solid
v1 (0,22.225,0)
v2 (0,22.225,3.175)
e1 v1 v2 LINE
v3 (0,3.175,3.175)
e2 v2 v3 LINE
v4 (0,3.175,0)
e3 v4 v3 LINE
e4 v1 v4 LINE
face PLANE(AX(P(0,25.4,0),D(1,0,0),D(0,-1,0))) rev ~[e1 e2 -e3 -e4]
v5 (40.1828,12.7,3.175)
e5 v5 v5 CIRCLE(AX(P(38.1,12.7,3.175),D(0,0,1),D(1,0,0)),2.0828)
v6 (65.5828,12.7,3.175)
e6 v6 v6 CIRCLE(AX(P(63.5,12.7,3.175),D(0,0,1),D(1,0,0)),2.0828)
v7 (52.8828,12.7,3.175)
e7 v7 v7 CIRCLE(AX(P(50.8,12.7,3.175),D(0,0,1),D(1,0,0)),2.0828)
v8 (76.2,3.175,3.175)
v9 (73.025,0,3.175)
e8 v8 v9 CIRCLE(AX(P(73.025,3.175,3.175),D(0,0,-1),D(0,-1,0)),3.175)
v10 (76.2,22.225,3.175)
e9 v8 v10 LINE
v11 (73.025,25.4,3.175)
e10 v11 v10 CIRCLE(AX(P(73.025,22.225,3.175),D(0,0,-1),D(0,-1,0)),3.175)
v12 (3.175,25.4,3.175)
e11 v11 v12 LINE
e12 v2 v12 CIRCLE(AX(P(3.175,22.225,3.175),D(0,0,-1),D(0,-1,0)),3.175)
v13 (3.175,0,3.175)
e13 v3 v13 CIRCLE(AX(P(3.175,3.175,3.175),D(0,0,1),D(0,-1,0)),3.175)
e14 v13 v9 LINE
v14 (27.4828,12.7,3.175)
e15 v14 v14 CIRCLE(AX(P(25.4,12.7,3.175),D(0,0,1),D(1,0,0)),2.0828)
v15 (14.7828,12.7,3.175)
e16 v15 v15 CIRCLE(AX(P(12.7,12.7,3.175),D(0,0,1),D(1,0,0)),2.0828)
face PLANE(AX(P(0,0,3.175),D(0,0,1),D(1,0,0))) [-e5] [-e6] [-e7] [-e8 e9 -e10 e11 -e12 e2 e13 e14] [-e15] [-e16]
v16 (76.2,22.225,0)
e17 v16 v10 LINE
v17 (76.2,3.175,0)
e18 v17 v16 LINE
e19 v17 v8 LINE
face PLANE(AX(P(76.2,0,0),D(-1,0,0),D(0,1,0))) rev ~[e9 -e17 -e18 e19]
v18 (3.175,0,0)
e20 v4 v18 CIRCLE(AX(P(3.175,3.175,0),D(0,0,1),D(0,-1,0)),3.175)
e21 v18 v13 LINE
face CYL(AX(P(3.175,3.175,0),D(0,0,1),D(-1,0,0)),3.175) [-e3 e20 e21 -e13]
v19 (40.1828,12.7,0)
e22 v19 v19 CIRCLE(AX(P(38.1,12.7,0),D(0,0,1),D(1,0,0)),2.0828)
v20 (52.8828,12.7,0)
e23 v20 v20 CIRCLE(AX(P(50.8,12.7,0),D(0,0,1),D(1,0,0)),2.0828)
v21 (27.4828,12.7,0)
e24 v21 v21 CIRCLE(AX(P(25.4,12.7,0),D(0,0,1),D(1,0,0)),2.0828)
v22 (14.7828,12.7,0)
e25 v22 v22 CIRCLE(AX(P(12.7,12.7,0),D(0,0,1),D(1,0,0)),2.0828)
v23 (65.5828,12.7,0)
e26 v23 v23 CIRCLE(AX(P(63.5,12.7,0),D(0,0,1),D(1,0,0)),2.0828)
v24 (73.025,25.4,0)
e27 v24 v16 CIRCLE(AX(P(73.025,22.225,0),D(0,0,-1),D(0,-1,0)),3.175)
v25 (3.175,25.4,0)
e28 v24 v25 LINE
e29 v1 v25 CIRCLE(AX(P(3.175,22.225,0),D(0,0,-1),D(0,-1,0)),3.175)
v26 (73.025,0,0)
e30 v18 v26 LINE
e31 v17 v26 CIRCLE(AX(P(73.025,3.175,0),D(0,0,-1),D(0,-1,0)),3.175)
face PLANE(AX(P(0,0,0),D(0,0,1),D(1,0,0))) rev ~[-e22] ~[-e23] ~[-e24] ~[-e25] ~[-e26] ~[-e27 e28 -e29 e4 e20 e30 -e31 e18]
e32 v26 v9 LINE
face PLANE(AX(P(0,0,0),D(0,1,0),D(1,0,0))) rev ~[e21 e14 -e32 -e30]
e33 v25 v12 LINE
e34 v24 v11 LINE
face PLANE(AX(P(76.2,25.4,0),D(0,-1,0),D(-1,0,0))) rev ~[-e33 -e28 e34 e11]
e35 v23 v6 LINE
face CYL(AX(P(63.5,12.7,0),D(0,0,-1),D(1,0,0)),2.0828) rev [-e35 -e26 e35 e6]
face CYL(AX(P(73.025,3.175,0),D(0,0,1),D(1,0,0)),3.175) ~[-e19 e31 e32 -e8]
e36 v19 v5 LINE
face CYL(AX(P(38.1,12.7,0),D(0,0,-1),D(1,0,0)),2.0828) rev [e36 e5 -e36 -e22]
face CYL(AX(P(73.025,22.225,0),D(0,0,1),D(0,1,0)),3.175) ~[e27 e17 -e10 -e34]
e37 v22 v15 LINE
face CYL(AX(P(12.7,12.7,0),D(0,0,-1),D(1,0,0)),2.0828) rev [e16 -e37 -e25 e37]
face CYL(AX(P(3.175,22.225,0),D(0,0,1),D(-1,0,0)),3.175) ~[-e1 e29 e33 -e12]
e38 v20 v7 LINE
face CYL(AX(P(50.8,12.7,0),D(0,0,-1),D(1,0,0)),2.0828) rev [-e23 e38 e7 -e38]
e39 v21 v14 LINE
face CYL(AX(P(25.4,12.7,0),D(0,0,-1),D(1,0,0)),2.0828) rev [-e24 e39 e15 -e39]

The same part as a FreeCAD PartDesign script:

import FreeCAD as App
import Part
import Sketcher
Q = App.Units.Quantity


def edges_at(feature, points):
    """Names of the edges that pass closest to the given points."""
    edges = feature.Shape.Edges
    near = lambda p: min(range(len(edges)), key=lambda i: edges[i].distToShape(Part.Vertex(*p))[0])
    return sorted({f"Edge{near(p) + 1}" for p in points})

doc = App.newDocument("Part")
body = doc.addObject("PartDesign::Body", "Body")

sketch1 = doc.addObject("Sketcher::SketchObject", "Sketch")
body.addObject(sketch1)
sketch1.AttachmentSupport = (doc.XY_Plane, [""])
sketch1.MapMode = "FlatFace"
sketch1.addGeometry([
    Part.LineSegment(App.Vector(0, 25.4, 0), App.Vector(0, 0, 0)),
    Part.LineSegment(App.Vector(0, 0, 0), App.Vector(76.2, 0, 0)),
    Part.LineSegment(App.Vector(76.2, 0, 0), App.Vector(76.2, 25.4, 0)),
    Part.LineSegment(App.Vector(76.2, 25.4, 0), App.Vector(0, 25.4, 0)),
    Part.Circle(App.Vector(12.7, 12.7, 0), App.Vector(0, 0, 1), 2.1),
    Part.Circle(App.Vector(25.4, 12.7, 0), App.Vector(0, 0, 1), 2.1),
    Part.Circle(App.Vector(38.1, 12.7, 0), App.Vector(0, 0, 1), 2.1),
    Part.Circle(App.Vector(50.8, 12.7, 0), App.Vector(0, 0, 1), 2.1),
    Part.Circle(App.Vector(63.5, 12.7, 0), App.Vector(0, 0, 1), 2.1),
], False)
sketch1.addConstraint([
    Sketcher.Constraint("Coincident", 0, 2, 1, 1),
    Sketcher.Constraint("Coincident", 1, 2, 2, 1),
    Sketcher.Constraint("Coincident", 2, 2, 3, 1),
    Sketcher.Constraint("Coincident", 3, 2, 0, 1),
    Sketcher.Constraint("Vertical", 0),
    Sketcher.Constraint("Horizontal", 1),
    Sketcher.Constraint("Vertical", 2),
    Sketcher.Constraint("Horizontal", 3),
    Sketcher.Constraint("Coincident", 0, 2, -1, 1),
    Sketcher.Constraint("Equal", 4, 5),
    Sketcher.Constraint("Equal", 5, 6),
    Sketcher.Constraint("Equal", 6, 7),
    Sketcher.Constraint("Equal", 7, 8),
    Sketcher.Constraint("Horizontal", 4, 3, 5, 3),
    Sketcher.Constraint("Horizontal", 5, 3, 6, 3),
    Sketcher.Constraint("Horizontal", 6, 3, 7, 3),
    Sketcher.Constraint("Horizontal", 7, 3, 8, 3),
    Sketcher.Constraint("DistanceX", 1, 1, 1, 2, Q("3 in")),
    Sketcher.Constraint("DistanceY", 0, 2, 0, 1, Q("1 in")),
    Sketcher.Constraint("Diameter", 4, Q("0.164 in")),
    Sketcher.Constraint("DistanceX", -1, 1, 5, 3, Q("1 in")),
    Sketcher.Constraint("DistanceX", 4, 3, 6, 3, Q("1 in")),
    Sketcher.Constraint("DistanceX", 5, 3, 7, 3, Q("1 in")),
    Sketcher.Constraint("DistanceX", 6, 3, 8, 3, Q("1 in")),
    Sketcher.Constraint("DistanceX", -1, 1, 4, 3, Q("0.5 in")),
    Sketcher.Constraint("DistanceY", -1, 1, 4, 3, Q("0.5 in")),
])
pad1 = doc.addObject("PartDesign::Pad", "Pad")
body.addObject(pad1)
pad1.Profile = sketch1
pad1.Length = Q("0.125 in")
doc.recompute()

fillet = doc.addObject("PartDesign::Fillet", "Fillet")
body.addObject(fillet)
fillet.Base = (pad1, edges_at(pad1, [
    (0, 25.4, 1.587),
    (0, 0, 1.587),
    (76.2, 0, 1.587),
    (76.2, 25.4, 1.587),
]))
fillet.Radius = Q("0.125 in")

doc.recompute()
